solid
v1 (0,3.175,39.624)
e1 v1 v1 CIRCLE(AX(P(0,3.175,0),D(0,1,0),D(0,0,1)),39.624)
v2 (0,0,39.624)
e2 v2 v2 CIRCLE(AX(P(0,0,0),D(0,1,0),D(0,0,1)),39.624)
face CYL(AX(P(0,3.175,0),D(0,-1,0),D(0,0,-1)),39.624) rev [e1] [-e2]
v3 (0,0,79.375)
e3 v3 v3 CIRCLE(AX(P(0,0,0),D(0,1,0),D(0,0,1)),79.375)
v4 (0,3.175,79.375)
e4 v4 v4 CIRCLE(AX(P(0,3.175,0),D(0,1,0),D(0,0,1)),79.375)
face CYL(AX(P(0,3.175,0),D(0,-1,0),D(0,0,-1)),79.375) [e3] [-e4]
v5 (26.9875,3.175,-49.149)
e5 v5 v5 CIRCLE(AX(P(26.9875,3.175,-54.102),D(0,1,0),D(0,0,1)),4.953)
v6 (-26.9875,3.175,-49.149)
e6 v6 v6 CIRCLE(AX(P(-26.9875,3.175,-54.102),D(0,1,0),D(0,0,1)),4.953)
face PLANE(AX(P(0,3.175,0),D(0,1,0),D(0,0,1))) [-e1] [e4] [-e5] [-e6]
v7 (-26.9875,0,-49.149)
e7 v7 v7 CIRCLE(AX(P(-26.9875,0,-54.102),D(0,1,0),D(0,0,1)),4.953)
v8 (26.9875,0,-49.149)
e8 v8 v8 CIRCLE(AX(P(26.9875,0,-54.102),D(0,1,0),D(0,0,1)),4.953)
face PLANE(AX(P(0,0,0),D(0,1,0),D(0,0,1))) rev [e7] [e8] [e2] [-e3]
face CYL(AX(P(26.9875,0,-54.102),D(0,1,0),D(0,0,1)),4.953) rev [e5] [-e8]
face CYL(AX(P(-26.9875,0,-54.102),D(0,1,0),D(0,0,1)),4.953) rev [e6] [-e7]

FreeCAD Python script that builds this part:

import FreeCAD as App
import Part
import Sketcher
from FreeCAD import Vector
Q = App.Units.Quantity

doc = App.newDocument("Part")
body = doc.addObject("PartDesign::Body", "Body")

# Sketch on XZ plane
sketch1 = doc.addObject("Sketcher::SketchObject", "Sketch")
body.addObject(sketch1)
sketch1.AttachmentSupport = (doc.XZ_Plane, [""])
sketch1.MapMode = "FlatFace"
sketch1.addGeometry([
    Part.Circle(Vector(0, 0, 0), Vector(0, 0, 1), 79.375),
    Part.Circle(Vector(0, 0, 0), Vector(0, 0, 1), 39.624),
], False)
sketch1.addConstraint([
    Sketcher.Constraint("Coincident", 0, 3, -1, 1),
    Sketcher.Constraint("Coincident", 1, 3, -1, 1),
    Sketcher.Constraint("Diameter", 0, Q("6.25 in")),
    Sketcher.Constraint("Diameter", 1, Q("3.12 in")),
])
pad1 = doc.addObject("PartDesign::Pad", "Pad")
body.addObject(pad1)
pad1.Profile = sketch1
pad1.Length = Q("0.125 in")
pad1.Reversed = True

# Sketch on XZ plane
sketch2 = doc.addObject("Sketcher::SketchObject", "Sketch001")
body.addObject(sketch2)
sketch2.AttachmentSupport = (doc.XZ_Plane, [""])
sketch2.MapMode = "FlatFace"
sketch2.AttachmentOffset = App.Placement(Vector(0, 0, -0.125 * 25.4), App.Rotation())
sketch2.addGeometry([
    Part.Circle(Vector(26.9875, -54.102, 0), Vector(0, 0, 1), 4.953),
    Part.Circle(Vector(-26.9875, -54.102, 0), Vector(0, 0, 1), 4.953),
], False)
sketch2.addConstraint([
    Sketcher.Constraint("Equal", 0, 1),
    Sketcher.Constraint("Symmetric", 0, 3, 1, 3, -2),
    Sketcher.Constraint("Diameter", 0, Q("0.39 in")),
    Sketcher.Constraint("DistanceY", 0, 3, -1, 1, Q("2.13 in")),
    Sketcher.Constraint("DistanceX", -1, 1, 0, 3, Q("1.0625 in")),
])
pocket1 = doc.addObject("PartDesign::Pocket", "Pocket")
body.addObject(pocket1)
pocket1.Profile = sketch2
pocket1.Type = "ThroughAll"
pocket1.Reversed = True

doc.recompute()
